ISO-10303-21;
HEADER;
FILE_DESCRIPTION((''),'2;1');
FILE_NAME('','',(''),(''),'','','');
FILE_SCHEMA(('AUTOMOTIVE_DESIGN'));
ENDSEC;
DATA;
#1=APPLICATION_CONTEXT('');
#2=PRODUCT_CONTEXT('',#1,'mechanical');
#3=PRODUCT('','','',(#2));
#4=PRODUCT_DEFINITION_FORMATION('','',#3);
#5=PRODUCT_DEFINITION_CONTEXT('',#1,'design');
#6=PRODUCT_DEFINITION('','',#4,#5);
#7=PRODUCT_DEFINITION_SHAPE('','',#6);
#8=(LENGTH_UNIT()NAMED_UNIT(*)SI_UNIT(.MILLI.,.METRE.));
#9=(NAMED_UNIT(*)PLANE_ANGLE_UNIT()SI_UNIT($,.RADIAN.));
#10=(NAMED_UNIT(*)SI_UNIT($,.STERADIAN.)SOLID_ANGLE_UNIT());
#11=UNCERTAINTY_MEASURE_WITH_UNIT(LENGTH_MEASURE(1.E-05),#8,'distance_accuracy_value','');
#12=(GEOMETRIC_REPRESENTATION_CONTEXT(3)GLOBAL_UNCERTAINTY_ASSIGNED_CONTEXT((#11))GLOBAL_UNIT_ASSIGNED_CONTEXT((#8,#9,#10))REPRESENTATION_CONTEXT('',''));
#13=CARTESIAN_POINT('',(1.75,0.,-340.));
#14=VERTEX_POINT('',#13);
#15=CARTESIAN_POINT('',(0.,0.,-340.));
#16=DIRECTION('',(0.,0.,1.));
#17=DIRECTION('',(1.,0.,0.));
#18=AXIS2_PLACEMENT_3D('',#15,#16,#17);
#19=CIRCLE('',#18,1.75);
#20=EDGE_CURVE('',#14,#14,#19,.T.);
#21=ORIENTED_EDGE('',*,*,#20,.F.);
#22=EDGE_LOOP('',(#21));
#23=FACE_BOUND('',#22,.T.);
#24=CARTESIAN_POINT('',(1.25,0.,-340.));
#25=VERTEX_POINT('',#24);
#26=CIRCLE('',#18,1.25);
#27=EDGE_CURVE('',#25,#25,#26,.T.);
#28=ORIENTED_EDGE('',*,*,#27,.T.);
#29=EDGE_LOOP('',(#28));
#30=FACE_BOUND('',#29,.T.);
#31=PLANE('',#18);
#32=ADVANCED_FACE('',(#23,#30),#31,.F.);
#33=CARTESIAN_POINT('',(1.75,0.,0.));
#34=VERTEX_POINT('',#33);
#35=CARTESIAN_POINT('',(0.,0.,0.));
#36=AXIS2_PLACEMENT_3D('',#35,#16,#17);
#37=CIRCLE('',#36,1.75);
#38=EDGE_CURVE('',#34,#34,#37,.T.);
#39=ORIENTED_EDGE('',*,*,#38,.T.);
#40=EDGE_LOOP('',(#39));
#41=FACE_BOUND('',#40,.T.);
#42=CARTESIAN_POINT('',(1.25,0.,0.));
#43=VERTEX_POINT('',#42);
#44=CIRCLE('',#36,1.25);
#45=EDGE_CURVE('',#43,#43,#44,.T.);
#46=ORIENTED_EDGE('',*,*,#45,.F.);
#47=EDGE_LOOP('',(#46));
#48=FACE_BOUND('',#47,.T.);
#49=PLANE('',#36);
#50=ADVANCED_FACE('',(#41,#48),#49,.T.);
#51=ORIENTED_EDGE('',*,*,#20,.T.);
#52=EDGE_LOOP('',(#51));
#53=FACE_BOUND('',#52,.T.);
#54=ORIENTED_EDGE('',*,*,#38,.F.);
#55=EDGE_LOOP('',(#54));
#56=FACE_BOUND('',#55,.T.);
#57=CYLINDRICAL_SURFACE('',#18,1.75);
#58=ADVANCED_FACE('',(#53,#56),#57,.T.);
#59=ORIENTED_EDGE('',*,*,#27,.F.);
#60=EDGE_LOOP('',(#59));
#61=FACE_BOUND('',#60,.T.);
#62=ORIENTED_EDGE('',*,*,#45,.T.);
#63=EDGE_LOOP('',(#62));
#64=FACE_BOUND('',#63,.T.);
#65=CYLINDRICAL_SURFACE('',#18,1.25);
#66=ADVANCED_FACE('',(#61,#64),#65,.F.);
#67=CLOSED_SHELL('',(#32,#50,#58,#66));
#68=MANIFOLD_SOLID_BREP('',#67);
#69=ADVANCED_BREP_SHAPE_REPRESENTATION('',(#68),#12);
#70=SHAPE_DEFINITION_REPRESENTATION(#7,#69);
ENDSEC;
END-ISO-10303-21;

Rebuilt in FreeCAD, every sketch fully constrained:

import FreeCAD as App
import Part
import Sketcher

V = App.Vector
Q = App.Units.Quantity

doc = App.newDocument("Part")
body = doc.addObject("PartDesign::Body", "Body")

sketch1 = body.newObject("Sketcher::SketchObject", "Sketch")
sketch1.AttachmentSupport = (doc.getObject("XY_Plane"), [""])
sketch1.MapMode = "FlatFace"
sketch1.addGeometry([
    Part.Circle(V(0, 0, 0), V(0, 0, 1), 1.75),
    Part.Circle(V(0, 0, 0), V(0, 0, 1), 1.25),
], False)
sketch1.addConstraint([
    Sketcher.Constraint("Coincident", 0, 3, -1, 1),
    Sketcher.Constraint("Coincident", 1, 3, -1, 1),
    Sketcher.Constraint("Diameter", 0, Q("3.5 mm")),
    Sketcher.Constraint("Diameter", 1, Q("2.5 mm")),
])
pad1 = body.newObject("PartDesign::Pad", "Pad")
pad1.Profile = sketch1
pad1.Length = 340
pad1.Reversed = True

doc.recompute()
